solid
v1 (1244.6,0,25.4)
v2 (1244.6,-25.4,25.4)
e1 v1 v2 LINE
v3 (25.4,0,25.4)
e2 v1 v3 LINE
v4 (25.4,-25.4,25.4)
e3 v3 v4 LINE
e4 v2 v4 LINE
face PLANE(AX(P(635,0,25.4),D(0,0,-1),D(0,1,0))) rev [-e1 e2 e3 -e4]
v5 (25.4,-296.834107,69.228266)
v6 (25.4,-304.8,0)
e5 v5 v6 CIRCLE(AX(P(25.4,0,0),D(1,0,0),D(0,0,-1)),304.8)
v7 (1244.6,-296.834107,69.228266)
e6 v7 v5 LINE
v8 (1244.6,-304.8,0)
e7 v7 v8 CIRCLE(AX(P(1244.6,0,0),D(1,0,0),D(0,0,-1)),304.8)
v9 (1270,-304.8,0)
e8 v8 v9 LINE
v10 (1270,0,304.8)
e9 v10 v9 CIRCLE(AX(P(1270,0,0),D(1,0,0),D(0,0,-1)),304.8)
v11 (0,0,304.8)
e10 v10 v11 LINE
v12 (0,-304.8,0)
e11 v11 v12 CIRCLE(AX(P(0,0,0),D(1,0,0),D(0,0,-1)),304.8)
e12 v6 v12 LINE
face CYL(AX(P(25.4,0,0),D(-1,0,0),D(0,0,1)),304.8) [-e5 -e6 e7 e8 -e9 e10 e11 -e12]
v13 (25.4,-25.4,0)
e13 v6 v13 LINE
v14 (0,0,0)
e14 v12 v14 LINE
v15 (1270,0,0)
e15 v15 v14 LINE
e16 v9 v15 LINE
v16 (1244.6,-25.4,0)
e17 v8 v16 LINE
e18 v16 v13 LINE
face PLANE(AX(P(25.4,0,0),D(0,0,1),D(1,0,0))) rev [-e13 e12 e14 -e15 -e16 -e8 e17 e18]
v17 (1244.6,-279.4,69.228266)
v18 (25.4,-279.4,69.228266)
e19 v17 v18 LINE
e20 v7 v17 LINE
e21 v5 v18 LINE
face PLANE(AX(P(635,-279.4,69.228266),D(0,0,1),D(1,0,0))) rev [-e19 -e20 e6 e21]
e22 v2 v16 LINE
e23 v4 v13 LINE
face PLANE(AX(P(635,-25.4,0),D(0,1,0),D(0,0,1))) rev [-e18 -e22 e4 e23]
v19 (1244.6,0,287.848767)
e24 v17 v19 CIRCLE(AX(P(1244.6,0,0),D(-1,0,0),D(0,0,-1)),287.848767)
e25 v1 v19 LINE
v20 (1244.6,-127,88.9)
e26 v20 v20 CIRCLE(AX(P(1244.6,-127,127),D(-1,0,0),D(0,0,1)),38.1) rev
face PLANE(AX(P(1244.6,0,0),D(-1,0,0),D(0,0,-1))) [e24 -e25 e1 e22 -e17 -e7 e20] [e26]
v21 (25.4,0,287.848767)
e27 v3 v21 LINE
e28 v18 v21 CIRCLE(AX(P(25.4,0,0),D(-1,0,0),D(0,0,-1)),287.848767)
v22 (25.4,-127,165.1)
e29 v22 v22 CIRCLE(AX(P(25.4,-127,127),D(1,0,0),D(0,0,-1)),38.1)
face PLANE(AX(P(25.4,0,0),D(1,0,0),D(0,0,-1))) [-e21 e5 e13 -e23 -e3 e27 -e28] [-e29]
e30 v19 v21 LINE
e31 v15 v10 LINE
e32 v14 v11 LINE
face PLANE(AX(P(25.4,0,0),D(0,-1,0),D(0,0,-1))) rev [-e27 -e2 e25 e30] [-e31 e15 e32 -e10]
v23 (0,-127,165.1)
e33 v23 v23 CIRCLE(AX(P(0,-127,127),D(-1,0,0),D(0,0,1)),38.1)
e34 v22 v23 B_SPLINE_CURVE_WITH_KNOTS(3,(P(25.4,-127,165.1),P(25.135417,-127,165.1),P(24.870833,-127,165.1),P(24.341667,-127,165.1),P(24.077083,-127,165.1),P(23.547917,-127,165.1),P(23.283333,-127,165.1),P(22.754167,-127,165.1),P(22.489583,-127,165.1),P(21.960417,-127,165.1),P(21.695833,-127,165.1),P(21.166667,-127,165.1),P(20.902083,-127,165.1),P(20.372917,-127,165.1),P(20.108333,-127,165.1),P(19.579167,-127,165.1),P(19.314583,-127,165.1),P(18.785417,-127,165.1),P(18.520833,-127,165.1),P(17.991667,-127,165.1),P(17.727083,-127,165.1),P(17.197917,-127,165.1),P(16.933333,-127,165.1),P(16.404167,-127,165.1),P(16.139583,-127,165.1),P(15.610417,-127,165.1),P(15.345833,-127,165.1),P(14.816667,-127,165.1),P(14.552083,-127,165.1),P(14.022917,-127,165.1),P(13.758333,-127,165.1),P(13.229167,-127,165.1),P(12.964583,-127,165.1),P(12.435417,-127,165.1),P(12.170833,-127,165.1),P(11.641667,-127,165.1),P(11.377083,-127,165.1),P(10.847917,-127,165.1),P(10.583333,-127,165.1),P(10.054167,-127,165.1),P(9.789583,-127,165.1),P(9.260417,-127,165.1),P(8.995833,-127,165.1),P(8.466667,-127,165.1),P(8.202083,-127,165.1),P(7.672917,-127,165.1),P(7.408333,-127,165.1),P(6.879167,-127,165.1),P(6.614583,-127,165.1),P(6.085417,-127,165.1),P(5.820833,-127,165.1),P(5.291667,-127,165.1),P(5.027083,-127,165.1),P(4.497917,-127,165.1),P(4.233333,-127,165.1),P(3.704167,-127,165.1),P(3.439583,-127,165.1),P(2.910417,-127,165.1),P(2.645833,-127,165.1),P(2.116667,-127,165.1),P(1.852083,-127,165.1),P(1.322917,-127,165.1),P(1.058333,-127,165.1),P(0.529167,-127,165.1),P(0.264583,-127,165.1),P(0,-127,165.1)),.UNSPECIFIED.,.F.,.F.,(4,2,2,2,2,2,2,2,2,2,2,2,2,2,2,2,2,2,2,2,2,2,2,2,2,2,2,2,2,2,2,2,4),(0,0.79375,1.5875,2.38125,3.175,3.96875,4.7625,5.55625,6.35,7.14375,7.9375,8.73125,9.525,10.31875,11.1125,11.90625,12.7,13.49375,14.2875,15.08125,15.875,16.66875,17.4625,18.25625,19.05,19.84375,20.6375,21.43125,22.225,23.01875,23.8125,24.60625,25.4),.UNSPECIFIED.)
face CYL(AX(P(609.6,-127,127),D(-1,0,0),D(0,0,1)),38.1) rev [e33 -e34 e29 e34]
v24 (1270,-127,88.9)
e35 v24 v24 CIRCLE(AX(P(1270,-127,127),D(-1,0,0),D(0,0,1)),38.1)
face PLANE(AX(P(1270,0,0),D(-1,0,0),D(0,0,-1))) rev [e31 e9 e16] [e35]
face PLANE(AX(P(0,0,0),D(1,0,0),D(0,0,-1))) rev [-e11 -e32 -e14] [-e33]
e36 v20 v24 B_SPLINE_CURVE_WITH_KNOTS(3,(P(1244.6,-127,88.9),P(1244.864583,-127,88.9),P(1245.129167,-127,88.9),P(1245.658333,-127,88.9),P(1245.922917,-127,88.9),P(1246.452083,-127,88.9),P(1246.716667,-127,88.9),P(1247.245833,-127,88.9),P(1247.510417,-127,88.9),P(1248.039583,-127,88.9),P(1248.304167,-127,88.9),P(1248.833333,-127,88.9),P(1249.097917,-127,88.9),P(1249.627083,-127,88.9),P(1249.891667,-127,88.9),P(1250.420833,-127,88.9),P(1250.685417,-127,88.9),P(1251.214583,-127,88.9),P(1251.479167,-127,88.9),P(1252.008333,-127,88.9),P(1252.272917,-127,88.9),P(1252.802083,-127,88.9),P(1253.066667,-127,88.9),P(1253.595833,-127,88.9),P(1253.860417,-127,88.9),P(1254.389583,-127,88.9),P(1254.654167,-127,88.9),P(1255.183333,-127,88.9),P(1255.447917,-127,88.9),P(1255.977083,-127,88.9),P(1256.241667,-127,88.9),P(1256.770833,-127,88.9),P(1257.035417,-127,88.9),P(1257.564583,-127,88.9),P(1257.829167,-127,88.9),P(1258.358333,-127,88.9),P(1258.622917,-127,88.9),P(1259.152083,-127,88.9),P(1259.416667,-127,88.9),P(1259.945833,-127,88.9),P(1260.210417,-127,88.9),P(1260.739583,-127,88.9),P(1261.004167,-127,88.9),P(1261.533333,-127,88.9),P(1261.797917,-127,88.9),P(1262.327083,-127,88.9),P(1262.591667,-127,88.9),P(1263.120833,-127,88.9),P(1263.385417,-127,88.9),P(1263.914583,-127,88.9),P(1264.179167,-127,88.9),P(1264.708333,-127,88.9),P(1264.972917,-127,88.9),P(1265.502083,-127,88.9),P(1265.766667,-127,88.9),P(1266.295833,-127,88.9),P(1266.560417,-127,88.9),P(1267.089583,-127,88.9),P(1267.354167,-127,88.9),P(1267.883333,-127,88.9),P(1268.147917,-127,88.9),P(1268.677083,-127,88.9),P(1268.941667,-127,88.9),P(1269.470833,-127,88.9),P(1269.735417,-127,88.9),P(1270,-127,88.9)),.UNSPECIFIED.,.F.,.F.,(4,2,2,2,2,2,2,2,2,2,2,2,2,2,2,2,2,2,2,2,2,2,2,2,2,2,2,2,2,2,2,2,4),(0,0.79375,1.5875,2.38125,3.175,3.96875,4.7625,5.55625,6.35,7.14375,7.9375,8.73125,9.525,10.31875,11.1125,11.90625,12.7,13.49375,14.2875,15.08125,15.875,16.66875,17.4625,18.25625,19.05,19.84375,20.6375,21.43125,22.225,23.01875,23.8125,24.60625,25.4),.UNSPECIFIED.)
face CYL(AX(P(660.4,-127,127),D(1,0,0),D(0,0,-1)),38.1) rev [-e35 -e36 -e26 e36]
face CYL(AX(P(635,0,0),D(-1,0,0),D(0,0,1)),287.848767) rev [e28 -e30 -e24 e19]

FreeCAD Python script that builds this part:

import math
import FreeCAD as App
import Part
import Sketcher
from FreeCAD import Vector
Q = App.Units.Quantity

doc = App.newDocument("Part")
body = doc.addObject("PartDesign::Body", "Body")

sketch1 = body.newObject("Sketcher::SketchObject", "Sketch")
sketch1.AttachmentSupport = (doc.getObject("YZ_Plane"), [""])
sketch1.MapMode = "FlatFace"
sketch1.addGeometry(Part.LineSegment(Vector(0, 0, 0), Vector(0, 304.8, 0)), False)
sketch1.addGeometry(Part.ArcOfCircle(Part.Circle(Vector(0, 0, 0), Vector(0, 0, 1), 304.8), math.radians(90), math.radians(180)), False)
sketch1.addGeometry(Part.LineSegment(Vector(-304.8, 0, 0), Vector(0, 0, 0)), False)
sketch1.addConstraint(Sketcher.Constraint("Coincident", 0, 2, 1, 1))
sketch1.addConstraint(Sketcher.Constraint("Coincident", 1, 2, 2, 1))
sketch1.addConstraint(Sketcher.Constraint("Coincident", 2, 2, 0, 1))
sketch1.addConstraint(Sketcher.Constraint("Vertical", 0))
sketch1.addConstraint(Sketcher.Constraint("Horizontal", 2))
sketch1.addConstraint(Sketcher.Constraint("Coincident", 1, 3, -1, 1))
sketch1.addConstraint(Sketcher.Constraint("Coincident", 2, 2, -1, 1))
sketch1.addConstraint(Sketcher.Constraint("Radius", 1, Q("12 in")))
pad1 = body.newObject("PartDesign::Pad", "Pad")
pad1.Profile = sketch1
pad1.Length = Q("1 in")

sketch2 = body.newObject("Sketcher::SketchObject", "Sketch001")
sketch2.AttachmentSupport = (doc.getObject("YZ_Plane"), [""])
sketch2.MapMode = "FlatFace"
sketch2.AttachmentOffset = App.Placement(Vector(0, 0, 1 * 25.4), App.Rotation())
sketch2.addGeometry(Part.LineSegment(Vector(0, 287.848767, 0), Vector(0, 304.8, 0)), False)
sketch2.addGeometry(Part.ArcOfCircle(Part.Circle(Vector(0, 0, 0), Vector(0, 0, 1), 304.8), math.radians(90), math.radians(166.872023)), False)
sketch2.addGeometry(Part.LineSegment(Vector(-296.834107, 69.228266, 0), Vector(-279.4, 69.228266, 0)), False)
sketch2.addGeometry(Part.ArcOfCircle(Part.Circle(Vector(0, 0, 0), Vector(0, 0, 1), 287.848767), math.radians(90), math.radians(166.083817)), False)
sketch2.addGeometry(Part.LineSegment(Vector(0, 25.4, 0), Vector(-25.4, 25.4, 0)), False)
sketch2.addGeometry(Part.LineSegment(Vector(-25.4, 25.4, 0), Vector(-25.4, 0, 0)), False)
sketch2.addGeometry(Part.LineSegment(Vector(-25.4, 0, 0), Vector(0, 0, 0)), False)
sketch2.addGeometry(Part.LineSegment(Vector(0, 0, 0), Vector(0, 25.4, 0)), False)
sketch2.addConstraint(Sketcher.Constraint("Coincident", 0, 2, 1, 1))
sketch2.addConstraint(Sketcher.Constraint("Coincident", 1, 2, 2, 1))
sketch2.addConstraint(Sketcher.Constraint("Coincident", 2, 2, 3, 2))
sketch2.addConstraint(Sketcher.Constraint("Coincident", 3, 1, 0, 1))
sketch2.addConstraint(Sketcher.Constraint("Coincident", 4, 2, 5, 1))
sketch2.addConstraint(Sketcher.Constraint("Coincident", 5, 2, 6, 1))
sketch2.addConstraint(Sketcher.Constraint("Coincident", 6, 2, 7, 1))
sketch2.addConstraint(Sketcher.Constraint("Coincident", 7, 2, 4, 1))
sketch2.addConstraint(Sketcher.Constraint("Vertical", 0))
sketch2.addConstraint(Sketcher.Constraint("Horizontal", 2))
sketch2.addConstraint(Sketcher.Constraint("Horizontal", 4))
sketch2.addConstraint(Sketcher.Constraint("Vertical", 5))
sketch2.addConstraint(Sketcher.Constraint("Horizontal", 6))
sketch2.addConstraint(Sketcher.Constraint("Vertical", 7))
sketch2.addConstraint(Sketcher.Constraint("Coincident", 1, 3, -1, 1))
sketch2.addConstraint(Sketcher.Constraint("Coincident", 3, 3, -1, 1))
sketch2.addConstraint(Sketcher.Constraint("Coincident", 6, 2, -1, 1))
sketch2.addConstraint(Sketcher.Constraint("PointOnObject", 0, 2, -2))
sketch2.addConstraint(Sketcher.Constraint("Equal", 6, 5))
sketch2.addConstraint(Sketcher.Constraint("Radius", 1, Q("12 in")))
sketch2.addConstraint(Sketcher.Constraint("DistanceX", 4, 2, 4, 1, Q("1 in")))
sketch2.addConstraint(Sketcher.Constraint("DistanceX", 2, 2, -1, 1, Q("11 in")))
sketch2.addConstraint(Sketcher.Constraint("Radius", 3, Q("287.848767 mm")))
pad2 = body.newObject("PartDesign::Pad", "Pad001")
pad2.Profile = sketch2
pad2.Length = Q("24 in")

sketch3 = body.newObject("Sketcher::SketchObject", "Sketch002")
sketch3.AttachmentSupport = (doc.getObject("YZ_Plane"), [""])
sketch3.MapMode = "FlatFace"
sketch3.addGeometry(Part.Circle(Vector(-127, 127, 0), Vector(0, 0, 1), 38.1), False)
sketch3.addConstraint(Sketcher.Constraint("Diameter", 0, Q("3 in")))
sketch3.addConstraint(Sketcher.Constraint("DistanceX", 0, 3, -1, 1, Q("5 in")))
sketch3.addConstraint(Sketcher.Constraint("DistanceY", -1, 1, 0, 3, Q("5 in")))
pocket1 = body.newObject("PartDesign::Pocket", "Pocket")
pocket1.Profile = sketch3
pocket1.Length = Q("24 in")
pocket1.Reversed = True
doc.recompute()

datumplane = body.newObject("PartDesign::Plane", "DatumPlane")
datumplane.AttachmentSupport = (doc.getObject("YZ_Plane"), [""])
datumplane.MapMode = "FlatFace"
datumplane.AttachmentOffset = App.Placement(Vector(0, 0, 25 * 25.4), App.Rotation())
mirrored = body.newObject("PartDesign::Mirrored", "Mirrored")
mirrored.Originals = [pad2]
mirrored.MirrorPlane = (datumplane, [""])
body.Tip = mirrored
doc.recompute()

datumplane2 = body.newObject("PartDesign::Plane", "DatumPlane001")
datumplane2.AttachmentSupport = (doc.getObject("YZ_Plane"), [""])
datumplane2.MapMode = "FlatFace"
datumplane2.AttachmentOffset = App.Placement(Vector(0, 0, 25 * 25.4), App.Rotation())
mirrored2 = body.newObject("PartDesign::Mirrored", "Mirrored001")
mirrored2.Originals = [pad1]
mirrored2.MirrorPlane = (datumplane2, [""])
body.Tip = mirrored2
doc.recompute()

datumplane3 = body.newObject("PartDesign::Plane", "DatumPlane002")
datumplane3.AttachmentSupport = (doc.getObject("YZ_Plane"), [""])
datumplane3.MapMode = "FlatFace"
datumplane3.AttachmentOffset = App.Placement(Vector(0, 0, 25 * 25.4), App.Rotation())
mirrored3 = body.newObject("PartDesign::Mirrored", "Mirrored002")
mirrored3.Originals = [pocket1]
mirrored3.MirrorPlane = (datumplane3, [""])
body.Tip = mirrored3

doc.recompute()
